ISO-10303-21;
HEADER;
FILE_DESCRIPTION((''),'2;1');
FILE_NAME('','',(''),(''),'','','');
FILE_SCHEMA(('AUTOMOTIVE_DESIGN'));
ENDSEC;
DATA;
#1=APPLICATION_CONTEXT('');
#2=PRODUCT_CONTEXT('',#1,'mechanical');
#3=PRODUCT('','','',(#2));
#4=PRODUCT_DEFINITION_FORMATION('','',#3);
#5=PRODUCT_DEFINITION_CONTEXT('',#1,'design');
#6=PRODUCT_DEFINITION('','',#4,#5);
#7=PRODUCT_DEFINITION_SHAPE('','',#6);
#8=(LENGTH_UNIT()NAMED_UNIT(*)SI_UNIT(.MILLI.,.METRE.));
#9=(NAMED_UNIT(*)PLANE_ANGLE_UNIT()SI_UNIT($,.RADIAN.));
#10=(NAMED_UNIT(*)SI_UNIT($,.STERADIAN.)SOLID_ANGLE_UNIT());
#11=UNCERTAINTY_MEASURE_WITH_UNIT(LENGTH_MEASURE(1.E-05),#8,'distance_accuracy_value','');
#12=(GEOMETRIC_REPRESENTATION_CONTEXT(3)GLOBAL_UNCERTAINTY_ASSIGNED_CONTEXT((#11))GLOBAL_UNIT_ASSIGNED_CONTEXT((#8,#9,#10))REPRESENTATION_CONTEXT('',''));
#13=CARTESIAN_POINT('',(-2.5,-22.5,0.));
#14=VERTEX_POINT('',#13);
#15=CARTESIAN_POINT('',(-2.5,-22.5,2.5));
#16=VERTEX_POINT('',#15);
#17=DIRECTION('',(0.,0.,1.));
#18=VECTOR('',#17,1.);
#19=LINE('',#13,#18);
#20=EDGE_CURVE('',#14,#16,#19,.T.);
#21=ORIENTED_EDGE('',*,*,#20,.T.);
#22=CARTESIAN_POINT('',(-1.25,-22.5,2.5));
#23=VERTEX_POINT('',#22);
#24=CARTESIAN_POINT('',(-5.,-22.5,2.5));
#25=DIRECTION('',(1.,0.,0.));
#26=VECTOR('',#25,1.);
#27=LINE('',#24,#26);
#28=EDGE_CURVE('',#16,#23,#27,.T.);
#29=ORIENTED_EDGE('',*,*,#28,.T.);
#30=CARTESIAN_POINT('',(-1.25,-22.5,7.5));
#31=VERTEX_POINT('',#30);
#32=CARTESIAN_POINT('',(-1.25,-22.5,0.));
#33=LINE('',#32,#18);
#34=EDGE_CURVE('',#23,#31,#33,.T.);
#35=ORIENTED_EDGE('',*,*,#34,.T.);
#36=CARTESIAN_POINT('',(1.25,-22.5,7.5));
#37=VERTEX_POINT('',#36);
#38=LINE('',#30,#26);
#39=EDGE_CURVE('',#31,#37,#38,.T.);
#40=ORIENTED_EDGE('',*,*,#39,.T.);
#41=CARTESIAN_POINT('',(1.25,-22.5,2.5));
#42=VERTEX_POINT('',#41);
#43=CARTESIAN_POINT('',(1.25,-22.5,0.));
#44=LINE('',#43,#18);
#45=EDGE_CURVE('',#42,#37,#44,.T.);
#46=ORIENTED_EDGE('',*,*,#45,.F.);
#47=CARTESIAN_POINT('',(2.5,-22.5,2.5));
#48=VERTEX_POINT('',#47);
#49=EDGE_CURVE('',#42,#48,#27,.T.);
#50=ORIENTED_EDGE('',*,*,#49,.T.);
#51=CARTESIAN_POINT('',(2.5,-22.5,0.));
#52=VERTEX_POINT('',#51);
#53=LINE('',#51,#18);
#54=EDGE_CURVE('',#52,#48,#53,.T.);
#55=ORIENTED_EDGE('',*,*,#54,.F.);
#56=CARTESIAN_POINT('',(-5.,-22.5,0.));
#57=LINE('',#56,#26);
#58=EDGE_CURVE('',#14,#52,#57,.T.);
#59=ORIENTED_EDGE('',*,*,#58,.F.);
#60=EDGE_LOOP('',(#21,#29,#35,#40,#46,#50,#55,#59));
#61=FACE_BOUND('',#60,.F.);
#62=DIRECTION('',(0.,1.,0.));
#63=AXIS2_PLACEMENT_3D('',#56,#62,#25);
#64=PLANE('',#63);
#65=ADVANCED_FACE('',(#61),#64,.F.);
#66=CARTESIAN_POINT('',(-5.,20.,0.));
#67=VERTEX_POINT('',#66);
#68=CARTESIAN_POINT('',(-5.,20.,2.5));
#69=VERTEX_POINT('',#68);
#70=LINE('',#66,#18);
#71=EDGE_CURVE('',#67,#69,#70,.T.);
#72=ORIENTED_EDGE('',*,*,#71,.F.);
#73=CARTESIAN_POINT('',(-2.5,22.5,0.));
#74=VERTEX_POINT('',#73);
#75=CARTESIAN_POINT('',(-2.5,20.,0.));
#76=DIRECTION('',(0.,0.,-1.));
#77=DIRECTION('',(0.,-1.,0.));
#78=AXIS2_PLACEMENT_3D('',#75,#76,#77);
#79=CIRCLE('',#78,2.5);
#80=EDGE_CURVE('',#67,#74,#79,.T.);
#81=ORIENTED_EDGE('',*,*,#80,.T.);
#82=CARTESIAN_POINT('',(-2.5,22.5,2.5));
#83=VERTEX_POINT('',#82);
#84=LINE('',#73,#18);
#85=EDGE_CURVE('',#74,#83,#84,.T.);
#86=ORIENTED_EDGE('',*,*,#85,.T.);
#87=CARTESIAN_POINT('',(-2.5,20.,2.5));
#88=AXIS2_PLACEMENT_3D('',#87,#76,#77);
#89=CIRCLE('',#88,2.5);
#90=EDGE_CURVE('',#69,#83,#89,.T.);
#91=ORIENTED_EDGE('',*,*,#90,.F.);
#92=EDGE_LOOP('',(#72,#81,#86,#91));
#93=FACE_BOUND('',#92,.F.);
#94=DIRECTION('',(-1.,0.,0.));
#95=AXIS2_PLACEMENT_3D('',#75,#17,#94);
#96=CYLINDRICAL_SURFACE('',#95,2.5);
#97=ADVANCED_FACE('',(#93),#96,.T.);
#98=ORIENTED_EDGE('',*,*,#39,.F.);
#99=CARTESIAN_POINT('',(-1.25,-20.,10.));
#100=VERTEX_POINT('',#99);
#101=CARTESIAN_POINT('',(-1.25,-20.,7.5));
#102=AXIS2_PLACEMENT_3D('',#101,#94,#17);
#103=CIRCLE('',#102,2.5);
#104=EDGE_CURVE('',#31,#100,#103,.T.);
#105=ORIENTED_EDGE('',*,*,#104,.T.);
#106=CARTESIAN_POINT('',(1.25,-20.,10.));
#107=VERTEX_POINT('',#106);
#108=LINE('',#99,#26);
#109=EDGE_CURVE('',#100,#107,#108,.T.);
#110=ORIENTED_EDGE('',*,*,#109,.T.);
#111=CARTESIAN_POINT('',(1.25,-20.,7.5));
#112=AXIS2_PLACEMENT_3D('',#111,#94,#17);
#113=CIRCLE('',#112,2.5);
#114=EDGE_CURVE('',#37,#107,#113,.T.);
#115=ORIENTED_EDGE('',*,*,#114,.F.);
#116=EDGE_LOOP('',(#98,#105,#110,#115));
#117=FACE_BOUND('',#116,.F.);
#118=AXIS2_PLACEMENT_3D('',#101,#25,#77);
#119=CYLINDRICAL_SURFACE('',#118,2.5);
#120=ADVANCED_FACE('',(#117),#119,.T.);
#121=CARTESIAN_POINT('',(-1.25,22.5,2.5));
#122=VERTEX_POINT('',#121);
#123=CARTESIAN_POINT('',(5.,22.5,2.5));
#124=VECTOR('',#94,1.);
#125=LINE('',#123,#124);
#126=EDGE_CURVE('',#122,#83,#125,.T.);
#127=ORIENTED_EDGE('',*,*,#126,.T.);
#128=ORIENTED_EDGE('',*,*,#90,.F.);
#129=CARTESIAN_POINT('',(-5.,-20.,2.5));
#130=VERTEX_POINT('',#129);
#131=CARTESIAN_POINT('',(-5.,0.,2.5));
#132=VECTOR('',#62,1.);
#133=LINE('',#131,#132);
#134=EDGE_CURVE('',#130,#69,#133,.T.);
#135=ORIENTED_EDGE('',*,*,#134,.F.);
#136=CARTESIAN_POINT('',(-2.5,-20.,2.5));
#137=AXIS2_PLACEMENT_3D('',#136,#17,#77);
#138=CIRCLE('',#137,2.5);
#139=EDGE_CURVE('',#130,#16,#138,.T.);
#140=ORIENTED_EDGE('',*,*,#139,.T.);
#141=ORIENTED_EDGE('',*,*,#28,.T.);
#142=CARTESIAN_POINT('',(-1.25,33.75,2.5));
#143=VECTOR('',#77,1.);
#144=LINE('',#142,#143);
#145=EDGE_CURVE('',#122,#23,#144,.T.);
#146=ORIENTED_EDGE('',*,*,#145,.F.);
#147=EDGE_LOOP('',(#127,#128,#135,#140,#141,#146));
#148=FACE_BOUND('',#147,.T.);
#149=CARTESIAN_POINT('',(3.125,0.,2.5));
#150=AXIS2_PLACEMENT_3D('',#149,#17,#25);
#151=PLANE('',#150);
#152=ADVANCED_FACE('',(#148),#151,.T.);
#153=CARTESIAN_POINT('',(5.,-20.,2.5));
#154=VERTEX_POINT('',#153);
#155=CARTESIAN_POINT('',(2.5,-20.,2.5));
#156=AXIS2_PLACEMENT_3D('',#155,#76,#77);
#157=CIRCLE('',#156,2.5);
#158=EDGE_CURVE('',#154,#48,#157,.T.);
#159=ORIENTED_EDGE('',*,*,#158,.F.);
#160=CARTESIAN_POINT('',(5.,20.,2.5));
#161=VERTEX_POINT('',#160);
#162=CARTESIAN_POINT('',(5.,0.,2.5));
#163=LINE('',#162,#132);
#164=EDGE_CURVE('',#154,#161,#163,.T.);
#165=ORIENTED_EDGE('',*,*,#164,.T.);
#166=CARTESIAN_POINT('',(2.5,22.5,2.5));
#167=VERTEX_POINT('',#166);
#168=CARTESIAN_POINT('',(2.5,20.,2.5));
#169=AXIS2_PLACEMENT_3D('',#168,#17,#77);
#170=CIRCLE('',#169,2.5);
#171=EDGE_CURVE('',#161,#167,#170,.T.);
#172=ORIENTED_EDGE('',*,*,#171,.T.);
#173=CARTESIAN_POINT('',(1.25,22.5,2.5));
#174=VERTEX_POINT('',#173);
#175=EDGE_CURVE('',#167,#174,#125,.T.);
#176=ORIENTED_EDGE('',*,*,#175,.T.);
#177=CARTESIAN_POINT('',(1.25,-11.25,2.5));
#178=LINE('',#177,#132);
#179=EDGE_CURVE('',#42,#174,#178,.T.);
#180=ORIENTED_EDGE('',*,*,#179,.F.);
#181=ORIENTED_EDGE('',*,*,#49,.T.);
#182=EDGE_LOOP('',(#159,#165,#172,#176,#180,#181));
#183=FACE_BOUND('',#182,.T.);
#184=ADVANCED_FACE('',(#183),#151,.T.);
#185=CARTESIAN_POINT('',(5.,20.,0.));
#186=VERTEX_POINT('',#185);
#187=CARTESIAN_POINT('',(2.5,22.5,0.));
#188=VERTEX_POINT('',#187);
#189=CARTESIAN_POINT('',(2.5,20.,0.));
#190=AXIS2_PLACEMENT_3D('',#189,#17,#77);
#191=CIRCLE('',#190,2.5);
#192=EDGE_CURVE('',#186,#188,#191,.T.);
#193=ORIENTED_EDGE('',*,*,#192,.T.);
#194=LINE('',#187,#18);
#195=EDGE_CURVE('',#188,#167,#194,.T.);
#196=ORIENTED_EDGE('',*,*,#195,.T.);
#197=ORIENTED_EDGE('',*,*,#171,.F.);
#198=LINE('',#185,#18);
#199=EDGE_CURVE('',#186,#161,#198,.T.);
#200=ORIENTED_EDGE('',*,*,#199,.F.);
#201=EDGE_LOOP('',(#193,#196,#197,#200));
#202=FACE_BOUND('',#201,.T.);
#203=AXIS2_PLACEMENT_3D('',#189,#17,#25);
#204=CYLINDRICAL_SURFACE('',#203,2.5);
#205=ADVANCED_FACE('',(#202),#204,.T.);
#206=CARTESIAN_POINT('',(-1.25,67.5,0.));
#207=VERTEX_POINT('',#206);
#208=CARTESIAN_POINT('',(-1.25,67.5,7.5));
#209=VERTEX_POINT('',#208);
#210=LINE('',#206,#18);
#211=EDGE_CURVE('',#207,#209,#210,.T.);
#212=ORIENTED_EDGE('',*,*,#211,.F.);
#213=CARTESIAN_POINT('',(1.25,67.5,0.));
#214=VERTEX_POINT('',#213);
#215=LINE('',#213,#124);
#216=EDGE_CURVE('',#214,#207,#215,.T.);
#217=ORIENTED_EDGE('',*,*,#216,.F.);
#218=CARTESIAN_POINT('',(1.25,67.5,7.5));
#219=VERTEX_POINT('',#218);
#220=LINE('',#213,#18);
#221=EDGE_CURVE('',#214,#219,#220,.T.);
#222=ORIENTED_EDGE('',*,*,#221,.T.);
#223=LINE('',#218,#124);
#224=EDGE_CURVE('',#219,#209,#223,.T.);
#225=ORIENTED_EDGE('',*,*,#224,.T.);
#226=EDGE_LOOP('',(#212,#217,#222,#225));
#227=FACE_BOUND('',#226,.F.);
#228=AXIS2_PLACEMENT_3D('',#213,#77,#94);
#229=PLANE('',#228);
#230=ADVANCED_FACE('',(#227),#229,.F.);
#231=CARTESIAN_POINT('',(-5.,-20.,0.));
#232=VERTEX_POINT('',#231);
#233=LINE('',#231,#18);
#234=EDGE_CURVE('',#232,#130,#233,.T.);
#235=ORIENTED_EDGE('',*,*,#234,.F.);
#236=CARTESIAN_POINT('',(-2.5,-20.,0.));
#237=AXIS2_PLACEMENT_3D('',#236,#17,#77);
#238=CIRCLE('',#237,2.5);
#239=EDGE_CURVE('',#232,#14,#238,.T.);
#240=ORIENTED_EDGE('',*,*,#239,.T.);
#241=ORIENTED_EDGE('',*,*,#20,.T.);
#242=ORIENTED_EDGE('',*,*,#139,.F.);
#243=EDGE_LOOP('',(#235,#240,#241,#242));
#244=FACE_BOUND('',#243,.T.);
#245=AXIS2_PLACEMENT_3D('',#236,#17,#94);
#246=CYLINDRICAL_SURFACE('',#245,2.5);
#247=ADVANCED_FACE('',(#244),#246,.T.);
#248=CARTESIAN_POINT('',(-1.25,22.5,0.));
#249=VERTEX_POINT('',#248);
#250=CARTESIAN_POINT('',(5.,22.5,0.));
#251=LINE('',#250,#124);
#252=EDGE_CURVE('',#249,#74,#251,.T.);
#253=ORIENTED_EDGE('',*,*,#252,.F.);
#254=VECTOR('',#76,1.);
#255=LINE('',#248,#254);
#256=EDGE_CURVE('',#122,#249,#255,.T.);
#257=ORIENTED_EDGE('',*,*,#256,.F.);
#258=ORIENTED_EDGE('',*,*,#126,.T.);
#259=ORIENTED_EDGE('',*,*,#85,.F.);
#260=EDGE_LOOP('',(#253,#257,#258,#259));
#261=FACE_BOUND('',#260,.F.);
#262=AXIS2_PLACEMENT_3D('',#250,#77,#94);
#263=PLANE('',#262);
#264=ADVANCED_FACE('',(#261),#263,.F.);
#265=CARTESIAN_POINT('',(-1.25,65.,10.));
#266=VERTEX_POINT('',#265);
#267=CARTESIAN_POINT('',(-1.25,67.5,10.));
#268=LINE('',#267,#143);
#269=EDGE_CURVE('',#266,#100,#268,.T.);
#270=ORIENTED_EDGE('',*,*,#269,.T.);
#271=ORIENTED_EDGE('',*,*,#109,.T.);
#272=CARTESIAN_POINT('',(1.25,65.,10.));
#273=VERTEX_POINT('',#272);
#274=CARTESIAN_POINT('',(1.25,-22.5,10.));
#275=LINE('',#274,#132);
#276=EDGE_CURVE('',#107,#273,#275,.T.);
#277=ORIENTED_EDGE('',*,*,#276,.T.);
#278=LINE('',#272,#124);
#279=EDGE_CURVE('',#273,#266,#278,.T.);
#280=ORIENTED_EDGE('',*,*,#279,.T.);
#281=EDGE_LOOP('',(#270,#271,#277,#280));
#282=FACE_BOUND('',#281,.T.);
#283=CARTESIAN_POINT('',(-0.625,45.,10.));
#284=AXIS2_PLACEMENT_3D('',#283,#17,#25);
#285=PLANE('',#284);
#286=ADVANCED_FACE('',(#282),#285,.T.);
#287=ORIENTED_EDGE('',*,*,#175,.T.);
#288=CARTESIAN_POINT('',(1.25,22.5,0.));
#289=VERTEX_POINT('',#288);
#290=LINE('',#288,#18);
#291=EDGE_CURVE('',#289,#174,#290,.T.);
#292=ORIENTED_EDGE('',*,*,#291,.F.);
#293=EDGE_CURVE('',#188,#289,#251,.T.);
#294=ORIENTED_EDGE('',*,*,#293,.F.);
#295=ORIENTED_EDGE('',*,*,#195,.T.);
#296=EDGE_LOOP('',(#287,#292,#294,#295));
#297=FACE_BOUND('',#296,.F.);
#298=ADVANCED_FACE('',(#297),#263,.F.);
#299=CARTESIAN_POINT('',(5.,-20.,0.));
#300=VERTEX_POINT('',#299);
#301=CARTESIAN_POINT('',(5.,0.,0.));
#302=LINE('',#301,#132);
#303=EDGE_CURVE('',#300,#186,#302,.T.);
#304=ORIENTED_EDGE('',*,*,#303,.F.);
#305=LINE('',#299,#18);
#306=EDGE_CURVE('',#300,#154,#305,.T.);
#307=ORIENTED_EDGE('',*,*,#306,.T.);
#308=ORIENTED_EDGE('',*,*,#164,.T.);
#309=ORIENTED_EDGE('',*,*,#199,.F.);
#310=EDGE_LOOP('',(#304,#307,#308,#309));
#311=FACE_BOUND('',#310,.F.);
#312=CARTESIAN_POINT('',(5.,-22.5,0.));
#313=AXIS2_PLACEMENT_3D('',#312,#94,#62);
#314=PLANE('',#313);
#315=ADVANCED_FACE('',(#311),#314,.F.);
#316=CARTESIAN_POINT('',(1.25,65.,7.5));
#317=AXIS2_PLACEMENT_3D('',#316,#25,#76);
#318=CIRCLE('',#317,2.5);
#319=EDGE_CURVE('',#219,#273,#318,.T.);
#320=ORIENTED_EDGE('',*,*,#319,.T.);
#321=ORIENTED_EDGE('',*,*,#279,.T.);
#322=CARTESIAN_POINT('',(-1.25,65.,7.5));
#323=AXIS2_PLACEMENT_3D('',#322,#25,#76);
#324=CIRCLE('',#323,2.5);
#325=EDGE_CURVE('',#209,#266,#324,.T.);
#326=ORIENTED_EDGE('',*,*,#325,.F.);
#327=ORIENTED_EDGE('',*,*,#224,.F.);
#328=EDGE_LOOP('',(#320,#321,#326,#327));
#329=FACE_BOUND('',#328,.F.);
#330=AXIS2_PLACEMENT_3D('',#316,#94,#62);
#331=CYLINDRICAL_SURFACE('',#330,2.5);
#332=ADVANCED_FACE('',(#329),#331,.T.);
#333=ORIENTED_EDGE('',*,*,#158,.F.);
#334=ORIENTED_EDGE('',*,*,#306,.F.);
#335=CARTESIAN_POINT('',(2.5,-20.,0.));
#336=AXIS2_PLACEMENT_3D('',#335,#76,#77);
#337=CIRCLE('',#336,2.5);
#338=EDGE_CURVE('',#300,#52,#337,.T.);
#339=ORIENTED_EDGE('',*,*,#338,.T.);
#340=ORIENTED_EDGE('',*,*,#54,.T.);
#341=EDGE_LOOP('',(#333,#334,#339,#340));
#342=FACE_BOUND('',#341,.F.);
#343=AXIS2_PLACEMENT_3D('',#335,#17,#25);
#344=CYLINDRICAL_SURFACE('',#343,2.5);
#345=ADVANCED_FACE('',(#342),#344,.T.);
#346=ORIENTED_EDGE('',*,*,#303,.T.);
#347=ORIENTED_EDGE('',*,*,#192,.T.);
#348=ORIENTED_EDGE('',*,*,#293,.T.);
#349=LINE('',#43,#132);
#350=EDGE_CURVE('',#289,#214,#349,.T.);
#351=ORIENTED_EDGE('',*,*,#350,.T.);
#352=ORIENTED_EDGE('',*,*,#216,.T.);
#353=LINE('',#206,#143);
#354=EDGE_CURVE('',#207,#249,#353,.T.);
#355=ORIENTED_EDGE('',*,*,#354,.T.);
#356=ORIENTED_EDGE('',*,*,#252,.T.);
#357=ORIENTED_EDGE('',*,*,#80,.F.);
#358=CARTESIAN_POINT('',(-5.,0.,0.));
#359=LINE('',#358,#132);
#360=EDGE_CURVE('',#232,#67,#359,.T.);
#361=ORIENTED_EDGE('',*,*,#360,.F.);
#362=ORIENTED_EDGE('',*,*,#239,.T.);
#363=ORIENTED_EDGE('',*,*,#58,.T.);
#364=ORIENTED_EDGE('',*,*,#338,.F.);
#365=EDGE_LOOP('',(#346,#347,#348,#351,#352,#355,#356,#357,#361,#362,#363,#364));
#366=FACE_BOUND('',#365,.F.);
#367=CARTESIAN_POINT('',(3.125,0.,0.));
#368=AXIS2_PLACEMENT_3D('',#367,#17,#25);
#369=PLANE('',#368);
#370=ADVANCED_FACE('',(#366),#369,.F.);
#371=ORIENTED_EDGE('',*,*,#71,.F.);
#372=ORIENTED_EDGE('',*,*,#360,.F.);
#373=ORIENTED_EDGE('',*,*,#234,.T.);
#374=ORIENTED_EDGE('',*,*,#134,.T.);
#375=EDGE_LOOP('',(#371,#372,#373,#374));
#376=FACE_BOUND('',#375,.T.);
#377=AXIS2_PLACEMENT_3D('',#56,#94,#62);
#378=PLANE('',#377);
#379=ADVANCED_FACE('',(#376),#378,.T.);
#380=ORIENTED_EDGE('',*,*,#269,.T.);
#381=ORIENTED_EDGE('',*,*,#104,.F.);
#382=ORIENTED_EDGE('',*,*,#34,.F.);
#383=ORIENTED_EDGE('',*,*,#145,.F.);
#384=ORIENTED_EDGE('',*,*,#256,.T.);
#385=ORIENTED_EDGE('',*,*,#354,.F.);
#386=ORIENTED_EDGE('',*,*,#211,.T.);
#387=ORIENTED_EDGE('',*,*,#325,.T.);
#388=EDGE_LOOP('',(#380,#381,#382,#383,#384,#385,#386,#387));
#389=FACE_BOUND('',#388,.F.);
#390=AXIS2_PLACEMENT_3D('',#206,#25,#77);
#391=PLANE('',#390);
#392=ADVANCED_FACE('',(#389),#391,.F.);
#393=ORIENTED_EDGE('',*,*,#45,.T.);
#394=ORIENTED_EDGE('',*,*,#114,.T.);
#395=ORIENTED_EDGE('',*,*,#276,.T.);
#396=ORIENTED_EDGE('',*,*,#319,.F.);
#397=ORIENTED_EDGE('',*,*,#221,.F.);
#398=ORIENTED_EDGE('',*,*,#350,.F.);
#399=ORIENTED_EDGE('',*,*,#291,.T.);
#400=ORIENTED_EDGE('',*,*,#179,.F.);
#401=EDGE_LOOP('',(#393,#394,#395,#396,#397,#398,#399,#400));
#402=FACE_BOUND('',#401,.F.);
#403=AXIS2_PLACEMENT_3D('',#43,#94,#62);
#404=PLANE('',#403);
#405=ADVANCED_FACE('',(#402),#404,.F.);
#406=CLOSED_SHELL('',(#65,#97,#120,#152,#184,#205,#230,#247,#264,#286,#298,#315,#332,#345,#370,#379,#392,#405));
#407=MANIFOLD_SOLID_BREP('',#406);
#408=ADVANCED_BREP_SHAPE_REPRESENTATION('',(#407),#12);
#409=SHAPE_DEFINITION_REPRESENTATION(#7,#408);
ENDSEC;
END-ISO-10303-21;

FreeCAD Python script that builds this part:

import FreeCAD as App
import Part
import Sketcher
from FreeCAD import Vector


def edges_at(feature, points):
    """Names of the edges that pass closest to the given points."""
    edges = feature.Shape.Edges
    near = lambda p: min(range(len(edges)), key=lambda i: edges[i].distToShape(Part.Vertex(*p))[0])
    return sorted({f"Edge{near(p) + 1}" for p in points})


def add_polygon(sketch, points):
    """Adds a closed chain of lines whose ends are joined by coincident constraints."""
    first, n = sketch.GeometryCount, len(points)
    for a, b in zip(points, points[1:] + points[:1]):
        sketch.addGeometry(Part.LineSegment(App.Vector(*a, 0), App.Vector(*b, 0)), False)
    for i in range(n):
        sketch.addConstraint(Sketcher.Constraint("Coincident", first + i, 2, first + (i + 1) % n, 1))

doc = App.newDocument("Part")
body = doc.addObject("PartDesign::Body", "Body")

sketch1 = doc.addObject("Sketcher::SketchObject", "Sketch")
body.addObject(sketch1)
sketch1.AttachmentSupport = (doc.XY_Plane, [""])
sketch1.MapMode = "FlatFace"
add_polygon(sketch1, [(-1.2, 67.5), (-1.2, -22.5), (1.2, -22.5), (1.2, 67.5)])
sketch1.addConstraint([
    Sketcher.Constraint("Vertical", 0),
    Sketcher.Constraint("Horizontal", 1),
    Sketcher.Constraint("Vertical", 2),
    Sketcher.Constraint("Horizontal", 3),
    Sketcher.Constraint("DistanceY", 0, 2, 0, 1, 90.0),
    Sketcher.Constraint("DistanceX", 1, 1, 1, 2, 2.5),
    Sketcher.Constraint("DistanceY", 0, 2, -1, 1, 22.5),
    Sketcher.Constraint("DistanceX", 0, 2, -1, 1, 1.25),
])
pad1 = doc.addObject("PartDesign::Pad", "Pad")
body.addObject(pad1)
pad1.Profile = sketch1
pad1.Length = 10

sketch2 = doc.addObject("Sketcher::SketchObject", "Sketch001")
body.addObject(sketch2)
sketch2.AttachmentSupport = (doc.XY_Plane, [""])
sketch2.MapMode = "FlatFace"
add_polygon(sketch2, [(5, -22), (5, 22), (-5, 22), (-5, -22)])
sketch2.addConstraint([
    Sketcher.Constraint("Vertical", 0),
    Sketcher.Constraint("Horizontal", 1),
    Sketcher.Constraint("Vertical", 2),
    Sketcher.Constraint("Horizontal", 3),
    Sketcher.Constraint("Symmetric", 0, 2, 2, 2, -1, 1),
    Sketcher.Constraint("DistanceX", 1, 2, 1, 1, 10.0),
    Sketcher.Constraint("DistanceY", 0, 1, 0, 2, 45.0),
])
pad2 = doc.addObject("PartDesign::Pad", "Pad001")
body.addObject(pad2)
pad2.Profile = sketch2
pad2.Length = 2.5
doc.recompute()

fillet = doc.addObject("PartDesign::Fillet", "Fillet")
body.addObject(fillet)
fillet.Base = (pad2, edges_at(pad2, [
    (5, 22.5, 1.25),
    (-5, 22.5, 1.25),
    (-5, -22.5, 1.25),
    (5, -22.5, 1.25),
]))
fillet.Radius = 2.5
doc.recompute()

fillet2 = doc.addObject("PartDesign::Fillet", "Fillet001")
body.addObject(fillet2)
fillet2.Base = (fillet, edges_at(fillet, [(0, -22.5, 10), (0, 67.5, 10)]))
fillet2.Radius = 2.5

doc.recompute()
